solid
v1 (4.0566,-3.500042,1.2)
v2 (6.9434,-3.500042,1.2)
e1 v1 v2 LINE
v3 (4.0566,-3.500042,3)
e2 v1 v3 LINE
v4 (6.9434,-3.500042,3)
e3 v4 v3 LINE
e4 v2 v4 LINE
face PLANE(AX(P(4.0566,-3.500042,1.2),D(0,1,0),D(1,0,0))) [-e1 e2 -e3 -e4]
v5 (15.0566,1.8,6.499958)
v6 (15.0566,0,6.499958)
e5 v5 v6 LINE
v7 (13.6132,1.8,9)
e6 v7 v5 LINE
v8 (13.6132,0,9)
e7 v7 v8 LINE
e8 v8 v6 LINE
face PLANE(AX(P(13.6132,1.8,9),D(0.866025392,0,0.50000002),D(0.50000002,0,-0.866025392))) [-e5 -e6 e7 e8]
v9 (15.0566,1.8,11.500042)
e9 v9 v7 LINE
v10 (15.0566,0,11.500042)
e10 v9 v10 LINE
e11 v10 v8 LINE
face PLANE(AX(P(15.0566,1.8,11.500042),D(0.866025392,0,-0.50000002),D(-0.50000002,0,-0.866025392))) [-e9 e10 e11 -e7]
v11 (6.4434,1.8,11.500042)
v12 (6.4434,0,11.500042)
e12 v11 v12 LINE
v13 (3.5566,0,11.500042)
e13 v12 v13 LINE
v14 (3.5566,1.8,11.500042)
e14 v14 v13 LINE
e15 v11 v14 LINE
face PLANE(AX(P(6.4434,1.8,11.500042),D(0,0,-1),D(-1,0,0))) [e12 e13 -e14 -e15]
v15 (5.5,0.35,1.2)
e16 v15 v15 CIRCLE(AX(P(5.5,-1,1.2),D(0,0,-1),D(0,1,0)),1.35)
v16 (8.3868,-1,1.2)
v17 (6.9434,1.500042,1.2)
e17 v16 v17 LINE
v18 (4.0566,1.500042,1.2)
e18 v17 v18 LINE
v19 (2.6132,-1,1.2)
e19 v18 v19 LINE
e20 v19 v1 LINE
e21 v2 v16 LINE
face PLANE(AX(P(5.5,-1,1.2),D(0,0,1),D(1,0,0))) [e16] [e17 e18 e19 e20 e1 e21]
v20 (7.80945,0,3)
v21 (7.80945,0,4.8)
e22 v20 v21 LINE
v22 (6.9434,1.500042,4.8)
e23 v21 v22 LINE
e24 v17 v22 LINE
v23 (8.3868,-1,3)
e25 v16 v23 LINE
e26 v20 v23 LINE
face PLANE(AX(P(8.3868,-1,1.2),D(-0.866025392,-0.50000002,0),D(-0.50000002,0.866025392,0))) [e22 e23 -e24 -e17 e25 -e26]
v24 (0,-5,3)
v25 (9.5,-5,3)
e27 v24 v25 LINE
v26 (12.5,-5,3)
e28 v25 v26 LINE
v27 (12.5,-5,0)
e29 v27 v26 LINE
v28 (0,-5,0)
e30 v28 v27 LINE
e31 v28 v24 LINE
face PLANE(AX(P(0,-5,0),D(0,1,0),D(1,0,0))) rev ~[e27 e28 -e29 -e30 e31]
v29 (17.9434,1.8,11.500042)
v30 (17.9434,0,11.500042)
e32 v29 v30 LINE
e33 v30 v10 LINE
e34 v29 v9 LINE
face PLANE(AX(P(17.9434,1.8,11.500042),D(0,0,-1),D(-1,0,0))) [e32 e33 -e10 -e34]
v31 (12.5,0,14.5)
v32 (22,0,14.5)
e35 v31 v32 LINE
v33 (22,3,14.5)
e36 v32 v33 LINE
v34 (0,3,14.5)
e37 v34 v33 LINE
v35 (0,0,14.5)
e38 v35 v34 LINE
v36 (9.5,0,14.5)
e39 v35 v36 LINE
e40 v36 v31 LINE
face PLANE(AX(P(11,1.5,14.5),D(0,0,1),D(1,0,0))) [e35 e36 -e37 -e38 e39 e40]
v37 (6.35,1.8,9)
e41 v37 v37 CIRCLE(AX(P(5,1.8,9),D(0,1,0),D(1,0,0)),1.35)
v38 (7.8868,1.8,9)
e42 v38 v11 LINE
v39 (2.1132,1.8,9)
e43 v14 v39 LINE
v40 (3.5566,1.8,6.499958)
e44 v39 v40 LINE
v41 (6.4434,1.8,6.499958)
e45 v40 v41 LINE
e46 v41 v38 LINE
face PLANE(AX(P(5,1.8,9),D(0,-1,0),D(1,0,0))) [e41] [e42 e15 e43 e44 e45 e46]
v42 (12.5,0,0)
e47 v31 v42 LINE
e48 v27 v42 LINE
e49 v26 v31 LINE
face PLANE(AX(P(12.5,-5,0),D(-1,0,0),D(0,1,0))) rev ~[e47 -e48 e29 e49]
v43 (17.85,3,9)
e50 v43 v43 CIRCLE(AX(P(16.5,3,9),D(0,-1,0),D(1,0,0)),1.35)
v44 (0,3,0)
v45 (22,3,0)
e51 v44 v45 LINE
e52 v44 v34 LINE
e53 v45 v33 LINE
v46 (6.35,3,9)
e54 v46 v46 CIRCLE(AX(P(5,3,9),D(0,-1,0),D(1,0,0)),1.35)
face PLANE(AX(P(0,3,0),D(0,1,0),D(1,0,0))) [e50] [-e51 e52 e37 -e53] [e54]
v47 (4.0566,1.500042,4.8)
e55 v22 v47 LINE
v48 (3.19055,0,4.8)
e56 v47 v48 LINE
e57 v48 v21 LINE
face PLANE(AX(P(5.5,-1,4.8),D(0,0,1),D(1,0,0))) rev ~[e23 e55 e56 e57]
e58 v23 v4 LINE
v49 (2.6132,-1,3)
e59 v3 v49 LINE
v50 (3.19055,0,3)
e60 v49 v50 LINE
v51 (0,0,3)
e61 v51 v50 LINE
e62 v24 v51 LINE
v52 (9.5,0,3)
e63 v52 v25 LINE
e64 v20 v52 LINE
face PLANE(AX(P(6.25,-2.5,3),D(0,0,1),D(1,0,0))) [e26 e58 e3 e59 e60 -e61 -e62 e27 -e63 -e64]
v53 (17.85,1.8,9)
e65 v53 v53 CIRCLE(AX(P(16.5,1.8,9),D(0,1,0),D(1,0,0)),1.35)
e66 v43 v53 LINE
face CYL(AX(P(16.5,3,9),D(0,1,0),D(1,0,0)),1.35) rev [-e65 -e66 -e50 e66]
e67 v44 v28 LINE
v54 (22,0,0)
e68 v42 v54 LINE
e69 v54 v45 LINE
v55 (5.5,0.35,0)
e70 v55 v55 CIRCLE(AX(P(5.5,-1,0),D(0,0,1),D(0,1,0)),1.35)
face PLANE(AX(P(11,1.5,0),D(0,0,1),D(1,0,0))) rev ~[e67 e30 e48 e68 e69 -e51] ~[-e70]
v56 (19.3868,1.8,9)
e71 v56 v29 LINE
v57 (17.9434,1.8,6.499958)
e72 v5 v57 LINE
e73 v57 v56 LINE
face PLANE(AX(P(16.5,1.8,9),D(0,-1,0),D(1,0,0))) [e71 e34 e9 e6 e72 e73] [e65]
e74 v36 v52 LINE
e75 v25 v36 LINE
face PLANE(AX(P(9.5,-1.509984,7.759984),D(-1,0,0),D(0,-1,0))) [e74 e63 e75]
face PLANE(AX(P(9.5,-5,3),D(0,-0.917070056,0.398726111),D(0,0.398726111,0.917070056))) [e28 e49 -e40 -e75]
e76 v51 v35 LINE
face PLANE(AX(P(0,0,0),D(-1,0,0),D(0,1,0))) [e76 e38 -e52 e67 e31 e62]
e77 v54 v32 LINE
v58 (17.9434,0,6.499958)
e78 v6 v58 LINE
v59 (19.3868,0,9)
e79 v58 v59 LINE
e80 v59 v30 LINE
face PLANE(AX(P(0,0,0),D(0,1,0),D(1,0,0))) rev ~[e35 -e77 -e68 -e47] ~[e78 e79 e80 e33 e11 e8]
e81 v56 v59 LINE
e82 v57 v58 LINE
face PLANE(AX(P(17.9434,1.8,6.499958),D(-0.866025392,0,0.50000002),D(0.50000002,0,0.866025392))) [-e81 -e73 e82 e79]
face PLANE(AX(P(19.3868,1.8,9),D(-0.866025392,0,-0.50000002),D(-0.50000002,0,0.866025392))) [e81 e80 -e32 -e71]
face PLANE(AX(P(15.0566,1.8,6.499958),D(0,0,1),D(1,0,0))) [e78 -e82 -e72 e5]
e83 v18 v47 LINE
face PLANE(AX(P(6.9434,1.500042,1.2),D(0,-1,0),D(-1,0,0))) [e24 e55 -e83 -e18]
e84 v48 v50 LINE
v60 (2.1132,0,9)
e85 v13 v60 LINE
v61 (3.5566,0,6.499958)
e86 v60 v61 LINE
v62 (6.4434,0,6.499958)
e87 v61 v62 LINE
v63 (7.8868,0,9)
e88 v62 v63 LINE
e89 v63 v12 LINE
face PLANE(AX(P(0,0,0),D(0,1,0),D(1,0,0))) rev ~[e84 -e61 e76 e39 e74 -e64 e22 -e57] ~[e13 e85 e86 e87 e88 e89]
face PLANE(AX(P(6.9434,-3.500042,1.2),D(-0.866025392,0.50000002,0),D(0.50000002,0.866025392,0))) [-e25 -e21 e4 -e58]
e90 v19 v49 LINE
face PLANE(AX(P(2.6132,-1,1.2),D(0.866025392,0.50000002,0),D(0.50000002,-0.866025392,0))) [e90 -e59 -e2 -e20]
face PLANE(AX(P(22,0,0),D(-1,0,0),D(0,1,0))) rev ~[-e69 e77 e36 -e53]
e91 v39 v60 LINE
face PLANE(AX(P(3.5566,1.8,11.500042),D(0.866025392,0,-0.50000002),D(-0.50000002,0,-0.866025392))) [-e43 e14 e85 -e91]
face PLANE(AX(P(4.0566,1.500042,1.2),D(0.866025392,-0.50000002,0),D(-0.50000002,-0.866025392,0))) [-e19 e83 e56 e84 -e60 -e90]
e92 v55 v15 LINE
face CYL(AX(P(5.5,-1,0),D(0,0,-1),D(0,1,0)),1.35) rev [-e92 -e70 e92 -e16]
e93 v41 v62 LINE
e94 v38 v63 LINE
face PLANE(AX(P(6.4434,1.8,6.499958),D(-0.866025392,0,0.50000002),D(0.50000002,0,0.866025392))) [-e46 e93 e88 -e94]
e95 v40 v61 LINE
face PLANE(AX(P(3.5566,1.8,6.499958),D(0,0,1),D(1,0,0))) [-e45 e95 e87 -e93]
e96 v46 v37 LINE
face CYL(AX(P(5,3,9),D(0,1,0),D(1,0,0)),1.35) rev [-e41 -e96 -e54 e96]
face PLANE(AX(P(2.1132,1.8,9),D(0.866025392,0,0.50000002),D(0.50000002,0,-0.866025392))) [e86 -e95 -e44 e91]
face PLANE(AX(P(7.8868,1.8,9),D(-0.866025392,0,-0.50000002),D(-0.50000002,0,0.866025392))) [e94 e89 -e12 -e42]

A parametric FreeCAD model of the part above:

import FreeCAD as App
import Part
import Sketcher
Q = App.Units.Quantity

doc = App.newDocument("Part")
body = doc.addObject("PartDesign::Body", "Body")

sketch1 = doc.addObject("Sketcher::SketchObject", "Sketch")
body.addObject(sketch1)
sketch1.AttachmentSupport = (doc.XY_Plane, [""])
sketch1.MapMode = "FlatFace"
sketch1.addGeometry([
    Part.LineSegment(App.Vector(2.9, 0, 0), App.Vector(1.4, 2.5, 0)),
    Part.LineSegment(App.Vector(1.4, 2.5, 0), App.Vector(-1.4, 2.5, 0)),
    Part.LineSegment(App.Vector(-1.4, 2.5, 0), App.Vector(-2.9, 0, 0)),
    Part.LineSegment(App.Vector(-2.9, 0, 0), App.Vector(-1.4, -2.5, 0)),
    Part.LineSegment(App.Vector(-1.4, -2.5, 0), App.Vector(1.4, -2.5, 0)),
    Part.LineSegment(App.Vector(1.4, -2.5, 0), App.Vector(2.9, 0, 0)),
], False)
sketch1.addConstraint([
    Sketcher.Constraint("Coincident", 0, 2, 1, 1),
    Sketcher.Constraint("Coincident", 1, 2, 2, 1),
    Sketcher.Constraint("Coincident", 2, 2, 3, 1),
    Sketcher.Constraint("Coincident", 3, 2, 4, 1),
    Sketcher.Constraint("Coincident", 4, 2, 5, 1),
    Sketcher.Constraint("Coincident", 5, 2, 0, 1),
    Sketcher.Constraint("Horizontal", 1),
    Sketcher.Constraint("Horizontal", 4),
    Sketcher.Constraint("Symmetric", 0, 2, 3, 2, -1, 1),
    Sketcher.Constraint("Symmetric", 2, 2, 5, 2, -1, 1),
    Sketcher.Constraint("PointOnObject", 2, 2, -1),
    Sketcher.Constraint("Parallel", 2, 5),
    Sketcher.Constraint("Vertical", 1, 2, 3, 2),
    Sketcher.Constraint("Angle", 0, Q("120.000001 deg")),
    Sketcher.Constraint("DistanceX", 1, 2, 1, 1, Q("2.8868 mm")),
    Sketcher.Constraint("Distance", 0, Q("2.8868 mm")),
])
pad1 = doc.addObject("PartDesign::Pad", "Pad")
body.addObject(pad1)
pad1.Profile = sketch1
pad1.Length = 3.6
body2 = doc.addObject("PartDesign::Body", "Body001")
doc.recompute()

body.Placement = App.Placement(App.Vector(5.5, -1, 1.2), App.Rotation(App.Vector(0, 0, 1), 0))
boolean = doc.addObject("PartDesign::Boolean", "Boolean")
body2.addObject(boolean)
boolean.Type = "Fuse"
boolean.addObjects([body])
body3 = doc.addObject("PartDesign::Body", "Body002")

sketch2 = doc.addObject("Sketcher::SketchObject", "Sketch001")
body3.addObject(sketch2)
sketch2.AttachmentSupport = (doc.getObject("XY_Plane002"), [""])
sketch2.MapMode = "FlatFace"
sketch2.addGeometry(Part.Circle(App.Vector(5.5, -1, 0), App.Vector(0, 0, 1), 1.4), False)
sketch2.addConstraint([
    Sketcher.Constraint("Diameter", 0, Q("2.7 mm")),
    Sketcher.Constraint("DistanceY", 0, 3, -1, 1, Q("1 mm")),
    Sketcher.Constraint("DistanceX", -1, 1, 0, 3, Q("5.5 mm")),
])
pad2 = doc.addObject("PartDesign::Pad", "Pad001")
body3.addObject(pad2)
pad2.Profile = sketch2
pad2.Length = 3
doc.recompute()

boolean2 = doc.addObject("PartDesign::Boolean", "Boolean001")
body3.addObject(boolean2)
boolean2.Type = "Fuse"
boolean2.addObjects([body2])
body4 = doc.addObject("PartDesign::Body", "Body003")

sketch3 = doc.addObject("Sketcher::SketchObject", "Sketch002")
body4.addObject(sketch3)
sketch3.AttachmentSupport = (doc.getObject("XZ_Plane003"), [""])
sketch3.MapMode = "FlatFace"
sketch3.AttachmentOffset = App.Placement(App.Vector(0, 0, -1.8), App.Rotation())
sketch3.addGeometry([
    Part.LineSegment(App.Vector(19.4, 9, 0), App.Vector(17.9, 11.5, 0)),
    Part.LineSegment(App.Vector(17.9, 11.5, 0), App.Vector(15.1, 11.5, 0)),
    Part.LineSegment(App.Vector(15.1, 11.5, 0), App.Vector(13.6, 9, 0)),
    Part.LineSegment(App.Vector(13.6, 9, 0), App.Vector(15.1, 6.5, 0)),
    Part.LineSegment(App.Vector(15.1, 6.5, 0), App.Vector(17.9, 6.5, 0)),
    Part.LineSegment(App.Vector(17.9, 6.5, 0), App.Vector(19.4, 9, 0)),
], False)
sketch3.addConstraint([
    Sketcher.Constraint("Coincident", 0, 2, 1, 1),
    Sketcher.Constraint("Coincident", 1, 2, 2, 1),
    Sketcher.Constraint("Coincident", 2, 2, 3, 1),
    Sketcher.Constraint("Coincident", 3, 2, 4, 1),
    Sketcher.Constraint("Coincident", 4, 2, 5, 1),
    Sketcher.Constraint("Coincident", 5, 2, 0, 1),
    Sketcher.Constraint("Horizontal", 1),
    Sketcher.Constraint("Horizontal", 4),
    Sketcher.Constraint("Parallel", 0, 3),
    Sketcher.Constraint("Parallel", 2, 5),
    Sketcher.Constraint("Horizontal", 2, 2, 5, 2),
    Sketcher.Constraint("Vertical", 1, 2, 3, 2),
    Sketcher.Constraint("Vertical", 0, 2, 4, 2),
    Sketcher.Constraint("Angle", 0, Q("120.000001 deg")),
    Sketcher.Constraint("DistanceY", -1, 1, 2, 2, Q("9 mm")),
    Sketcher.Constraint("DistanceX", 1, 2, 1, 1, Q("2.8868 mm")),
    Sketcher.Constraint("Distance", 0, Q("2.8868 mm")),
    Sketcher.Constraint("DistanceX", -1, 1, 0, 2, Q("17.9434 mm")),
])
pad3 = doc.addObject("PartDesign::Pad", "Pad002")
body4.addObject(pad3)
pad3.Profile = sketch3
pad3.Length = 1.8
body5 = doc.addObject("PartDesign::Body", "Body004")

sketch4 = doc.addObject("Sketcher::SketchObject", "Sketch003")
body5.addObject(sketch4)
sketch4.AttachmentSupport = (doc.getObject("XZ_Plane004"), [""])
sketch4.MapMode = "FlatFace"
sketch4.AttachmentOffset = App.Placement(App.Vector(0, 0, -3), App.Rotation())
sketch4.addGeometry(Part.Circle(App.Vector(16.5, 9, 0), App.Vector(0, 0, 1), 1.4), False)
sketch4.addConstraint([
    Sketcher.Constraint("Diameter", 0, Q("2.7 mm")),
    Sketcher.Constraint("DistanceY", -1, 1, 0, 3, Q("9 mm")),
    Sketcher.Constraint("DistanceX", -1, 1, 0, 3, Q("16.5 mm")),
])
pad4 = doc.addObject("PartDesign::Pad", "Pad003")
body5.addObject(pad4)
pad4.Profile = sketch4
pad4.Length = 30
doc.recompute()

boolean3 = doc.addObject("PartDesign::Boolean", "Boolean002")
body5.addObject(boolean3)
boolean3.Type = "Fuse"
boolean3.addObjects([body4])
body6 = doc.addObject("PartDesign::Body", "Body005")

sketch5 = doc.addObject("Sketcher::SketchObject", "Sketch004")
body6.addObject(sketch5)
sketch5.AttachmentSupport = (doc.getObject("XZ_Plane005"), [""])
sketch5.MapMode = "FlatFace"
sketch5.AttachmentOffset = App.Placement(App.Vector(0, 0, -1.8), App.Rotation())
sketch5.addGeometry([
    Part.LineSegment(App.Vector(7.9, 9, 0), App.Vector(6.4, 11.5, 0)),
    Part.LineSegment(App.Vector(6.4, 11.5, 0), App.Vector(3.6, 11.5, 0)),
    Part.LineSegment(App.Vector(3.6, 11.5, 0), App.Vector(2.1, 9, 0)),
    Part.LineSegment(App.Vector(2.1, 9, 0), App.Vector(3.6, 6.5, 0)),
    Part.LineSegment(App.Vector(3.6, 6.5, 0), App.Vector(6.4, 6.5, 0)),
    Part.LineSegment(App.Vector(6.4, 6.5, 0), App.Vector(7.9, 9, 0)),
], False)
sketch5.addConstraint([
    Sketcher.Constraint("Coincident", 0, 2, 1, 1),
    Sketcher.Constraint("Coincident", 1, 2, 2, 1),
    Sketcher.Constraint("Coincident", 2, 2, 3, 1),
    Sketcher.Constraint("Coincident", 3, 2, 4, 1),
    Sketcher.Constraint("Coincident", 4, 2, 5, 1),
    Sketcher.Constraint("Coincident", 5, 2, 0, 1),
    Sketcher.Constraint("Horizontal", 1),
    Sketcher.Constraint("Horizontal", 4),
    Sketcher.Constraint("Parallel", 0, 3),
    Sketcher.Constraint("Parallel", 2, 5),
    Sketcher.Constraint("Horizontal", 2, 2, 5, 2),
    Sketcher.Constraint("Vertical", 1, 2, 3, 2),
    Sketcher.Constraint("Vertical", 0, 2, 4, 2),
    Sketcher.Constraint("Angle", 0, Q("120.000001 deg")),
    Sketcher.Constraint("DistanceY", -1, 1, 2, 2, Q("9 mm")),
    Sketcher.Constraint("DistanceX", 1, 2, 1, 1, Q("2.8868 mm")),
    Sketcher.Constraint("Distance", 0, Q("2.8868 mm")),
    Sketcher.Constraint("DistanceX", -1, 1, 0, 2, Q("6.4434 mm")),
])
pad5 = doc.addObject("PartDesign::Pad", "Pad004")
body6.addObject(pad5)
pad5.Profile = sketch5
pad5.Length = 1.8
body7 = doc.addObject("PartDesign::Body", "Body006")

sketch6 = doc.addObject("Sketcher::SketchObject", "Sketch005")
body7.addObject(sketch6)
sketch6.AttachmentSupport = (doc.getObject("XZ_Plane006"), [""])
sketch6.MapMode = "FlatFace"
sketch6.AttachmentOffset = App.Placement(App.Vector(0, 0, -3), App.Rotation())
sketch6.addGeometry(Part.Circle(App.Vector(5, 9, 0), App.Vector(0, 0, 1), 1.4), False)
sketch6.addConstraint([
    Sketcher.Constraint("Diameter", 0, Q("2.7 mm")),
    Sketcher.Constraint("DistanceX", -1, 1, 0, 3, Q("5 mm")),
    Sketcher.Constraint("DistanceY", -1, 1, 0, 3, Q("9 mm")),
])
pad6 = doc.addObject("PartDesign::Pad", "Pad005")
body7.addObject(pad6)
pad6.Profile = sketch6
pad6.Length = 3
doc.recompute()

boolean4 = doc.addObject("PartDesign::Boolean", "Boolean003")
body7.addObject(boolean4)
boolean4.Type = "Fuse"
boolean4.addObjects([body6])
body8 = doc.addObject("PartDesign::Body", "Body007")

sketch7 = doc.addObject("Sketcher::SketchObject", "Sketch006")
body8.addObject(sketch7)
sketch7.AttachmentSupport = (doc.getObject("XY_Plane007"), [""])
sketch7.MapMode = "FlatFace"
sketch7.addGeometry([
    Part.LineSegment(App.Vector(0, 3, 0), App.Vector(0, 0, 0)),
    Part.LineSegment(App.Vector(0, 0, 0), App.Vector(22, 0, 0)),
    Part.LineSegment(App.Vector(22, 0, 0), App.Vector(22, 3, 0)),
    Part.LineSegment(App.Vector(22, 3, 0), App.Vector(0, 3, 0)),
], False)
sketch7.addConstraint([
    Sketcher.Constraint("Coincident", 0, 2, 1, 1),
    Sketcher.Constraint("Coincident", 1, 2, 2, 1),
    Sketcher.Constraint("Coincident", 2, 2, 3, 1),
    Sketcher.Constraint("Coincident", 3, 2, 0, 1),
    Sketcher.Constraint("Vertical", 0),
    Sketcher.Constraint("Horizontal", 1),
    Sketcher.Constraint("Vertical", 2),
    Sketcher.Constraint("Horizontal", 3),
    Sketcher.Constraint("Coincident", 0, 2, -1, 1),
    Sketcher.Constraint("DistanceX", 1, 1, 1, 2, Q("22 mm")),
    Sketcher.Constraint("DistanceY", 0, 2, 0, 1, Q("3 mm")),
])
pad7 = doc.addObject("PartDesign::Pad", "Pad006")
body8.addObject(pad7)
pad7.Profile = sketch7
pad7.Length = 14.5
doc.recompute()

boolean5 = doc.addObject("PartDesign::Boolean", "Boolean004")
body8.addObject(boolean5)
boolean5.Type = "Cut"
boolean5.addObjects([body7])
doc.recompute()

boolean6 = doc.addObject("PartDesign::Boolean", "Boolean005")
body8.addObject(boolean6)
boolean6.Type = "Cut"
boolean6.addObjects([body5])
body9 = doc.addObject("PartDesign::Body", "Body008")

sketch8 = doc.addObject("Sketcher::SketchObject", "Sketch007")
body9.addObject(sketch8)
sketch8.AttachmentSupport = (doc.getObject("XY_Plane008"), [""])
sketch8.MapMode = "FlatFace"
sketch8.addGeometry([
    Part.LineSegment(App.Vector(0, 0, 0), App.Vector(0, -5, 0)),
    Part.LineSegment(App.Vector(0, -5, 0), App.Vector(12, -5, 0)),
    Part.LineSegment(App.Vector(12, -5, 0), App.Vector(12, 0, 0)),
    Part.LineSegment(App.Vector(12, 0, 0), App.Vector(0, 0, 0)),
], False)
sketch8.addConstraint([
    Sketcher.Constraint("Coincident", 0, 2, 1, 1),
    Sketcher.Constraint("Coincident", 1, 2, 2, 1),
    Sketcher.Constraint("Coincident", 2, 2, 3, 1),
    Sketcher.Constraint("Coincident", 3, 2, 0, 1),
    Sketcher.Constraint("Vertical", 0),
    Sketcher.Constraint("Horizontal", 1),
    Sketcher.Constraint("Vertical", 2),
    Sketcher.Constraint("Horizontal", 3),
    Sketcher.Constraint("Coincident", 3, 2, -1, 1),
    Sketcher.Constraint("DistanceY", 0, 2, 0, 1, Q("5 mm")),
    Sketcher.Constraint("DistanceX", 1, 1, 1, 2, Q("12.5 mm")),
])
pad8 = doc.addObject("PartDesign::Pad", "Pad007")
body9.addObject(pad8)
pad8.Profile = sketch8
pad8.Length = 3
doc.recompute()

boolean7 = doc.addObject("PartDesign::Boolean", "Boolean006")
body9.addObject(boolean7)
boolean7.Type = "Fuse"
boolean7.addObjects([body8])
doc.recompute()

boolean8 = doc.addObject("PartDesign::Boolean", "Boolean007")
body9.addObject(boolean8)
boolean8.Type = "Cut"
boolean8.addObjects([body3])
body10 = doc.addObject("PartDesign::Body", "Body009")

sketch9 = doc.addObject("Sketcher::SketchObject", "Sketch008")
body10.addObject(sketch9)
sketch9.AttachmentSupport = (doc.getObject("YZ_Plane009"), [""])
sketch9.MapMode = "FlatFace"
sketch9.addGeometry([
    Part.LineSegment(App.Vector(0, 1, 0), App.Vector(0, 13, 0)),
    Part.LineSegment(App.Vector(0, 13, 0), App.Vector(-5, 1, 0)),
    Part.LineSegment(App.Vector(-5, 1, 0), App.Vector(0, 1, 0)),
], False)
sketch9.addConstraint([
    Sketcher.Constraint("Coincident", 0, 2, 1, 1),
    Sketcher.Constraint("Coincident", 1, 2, 2, 1),
    Sketcher.Constraint("Coincident", 2, 2, 0, 1),
    Sketcher.Constraint("Vertical", 0),
    Sketcher.Constraint("Horizontal", 2),
    Sketcher.Constraint("PointOnObject", 0, 2, -2),
    Sketcher.Constraint("DistanceX", 2, 1, 2, 2, Q("5 mm")),
    Sketcher.Constraint("DistanceY", 0, 1, 0, 2, Q("11.5 mm")),
    Sketcher.Constraint("DistanceY", -1, 1, 0, 2, Q("12.9 mm")),
])
pad9 = doc.addObject("PartDesign::Pad", "Pad008")
body10.addObject(pad9)
pad9.Profile = sketch9
pad9.Length = 3
body11 = doc.addObject("PartDesign::Body", "Body010")
doc.recompute()

body10.Placement = App.Placement(App.Vector(9.5, 0, 1.6), App.Rotation(App.Vector(0, 0, 1), 0))
boolean9 = doc.addObject("PartDesign::Boolean", "Boolean008")
body11.addObject(boolean9)
boolean9.Type = "Fuse"
boolean9.addObjects([body10])
doc.recompute()

boolean10 = doc.addObject("PartDesign::Boolean", "Boolean009")
body11.addObject(boolean10)
boolean10.Type = "Fuse"
boolean10.addObjects([body9])

doc.recompute()
